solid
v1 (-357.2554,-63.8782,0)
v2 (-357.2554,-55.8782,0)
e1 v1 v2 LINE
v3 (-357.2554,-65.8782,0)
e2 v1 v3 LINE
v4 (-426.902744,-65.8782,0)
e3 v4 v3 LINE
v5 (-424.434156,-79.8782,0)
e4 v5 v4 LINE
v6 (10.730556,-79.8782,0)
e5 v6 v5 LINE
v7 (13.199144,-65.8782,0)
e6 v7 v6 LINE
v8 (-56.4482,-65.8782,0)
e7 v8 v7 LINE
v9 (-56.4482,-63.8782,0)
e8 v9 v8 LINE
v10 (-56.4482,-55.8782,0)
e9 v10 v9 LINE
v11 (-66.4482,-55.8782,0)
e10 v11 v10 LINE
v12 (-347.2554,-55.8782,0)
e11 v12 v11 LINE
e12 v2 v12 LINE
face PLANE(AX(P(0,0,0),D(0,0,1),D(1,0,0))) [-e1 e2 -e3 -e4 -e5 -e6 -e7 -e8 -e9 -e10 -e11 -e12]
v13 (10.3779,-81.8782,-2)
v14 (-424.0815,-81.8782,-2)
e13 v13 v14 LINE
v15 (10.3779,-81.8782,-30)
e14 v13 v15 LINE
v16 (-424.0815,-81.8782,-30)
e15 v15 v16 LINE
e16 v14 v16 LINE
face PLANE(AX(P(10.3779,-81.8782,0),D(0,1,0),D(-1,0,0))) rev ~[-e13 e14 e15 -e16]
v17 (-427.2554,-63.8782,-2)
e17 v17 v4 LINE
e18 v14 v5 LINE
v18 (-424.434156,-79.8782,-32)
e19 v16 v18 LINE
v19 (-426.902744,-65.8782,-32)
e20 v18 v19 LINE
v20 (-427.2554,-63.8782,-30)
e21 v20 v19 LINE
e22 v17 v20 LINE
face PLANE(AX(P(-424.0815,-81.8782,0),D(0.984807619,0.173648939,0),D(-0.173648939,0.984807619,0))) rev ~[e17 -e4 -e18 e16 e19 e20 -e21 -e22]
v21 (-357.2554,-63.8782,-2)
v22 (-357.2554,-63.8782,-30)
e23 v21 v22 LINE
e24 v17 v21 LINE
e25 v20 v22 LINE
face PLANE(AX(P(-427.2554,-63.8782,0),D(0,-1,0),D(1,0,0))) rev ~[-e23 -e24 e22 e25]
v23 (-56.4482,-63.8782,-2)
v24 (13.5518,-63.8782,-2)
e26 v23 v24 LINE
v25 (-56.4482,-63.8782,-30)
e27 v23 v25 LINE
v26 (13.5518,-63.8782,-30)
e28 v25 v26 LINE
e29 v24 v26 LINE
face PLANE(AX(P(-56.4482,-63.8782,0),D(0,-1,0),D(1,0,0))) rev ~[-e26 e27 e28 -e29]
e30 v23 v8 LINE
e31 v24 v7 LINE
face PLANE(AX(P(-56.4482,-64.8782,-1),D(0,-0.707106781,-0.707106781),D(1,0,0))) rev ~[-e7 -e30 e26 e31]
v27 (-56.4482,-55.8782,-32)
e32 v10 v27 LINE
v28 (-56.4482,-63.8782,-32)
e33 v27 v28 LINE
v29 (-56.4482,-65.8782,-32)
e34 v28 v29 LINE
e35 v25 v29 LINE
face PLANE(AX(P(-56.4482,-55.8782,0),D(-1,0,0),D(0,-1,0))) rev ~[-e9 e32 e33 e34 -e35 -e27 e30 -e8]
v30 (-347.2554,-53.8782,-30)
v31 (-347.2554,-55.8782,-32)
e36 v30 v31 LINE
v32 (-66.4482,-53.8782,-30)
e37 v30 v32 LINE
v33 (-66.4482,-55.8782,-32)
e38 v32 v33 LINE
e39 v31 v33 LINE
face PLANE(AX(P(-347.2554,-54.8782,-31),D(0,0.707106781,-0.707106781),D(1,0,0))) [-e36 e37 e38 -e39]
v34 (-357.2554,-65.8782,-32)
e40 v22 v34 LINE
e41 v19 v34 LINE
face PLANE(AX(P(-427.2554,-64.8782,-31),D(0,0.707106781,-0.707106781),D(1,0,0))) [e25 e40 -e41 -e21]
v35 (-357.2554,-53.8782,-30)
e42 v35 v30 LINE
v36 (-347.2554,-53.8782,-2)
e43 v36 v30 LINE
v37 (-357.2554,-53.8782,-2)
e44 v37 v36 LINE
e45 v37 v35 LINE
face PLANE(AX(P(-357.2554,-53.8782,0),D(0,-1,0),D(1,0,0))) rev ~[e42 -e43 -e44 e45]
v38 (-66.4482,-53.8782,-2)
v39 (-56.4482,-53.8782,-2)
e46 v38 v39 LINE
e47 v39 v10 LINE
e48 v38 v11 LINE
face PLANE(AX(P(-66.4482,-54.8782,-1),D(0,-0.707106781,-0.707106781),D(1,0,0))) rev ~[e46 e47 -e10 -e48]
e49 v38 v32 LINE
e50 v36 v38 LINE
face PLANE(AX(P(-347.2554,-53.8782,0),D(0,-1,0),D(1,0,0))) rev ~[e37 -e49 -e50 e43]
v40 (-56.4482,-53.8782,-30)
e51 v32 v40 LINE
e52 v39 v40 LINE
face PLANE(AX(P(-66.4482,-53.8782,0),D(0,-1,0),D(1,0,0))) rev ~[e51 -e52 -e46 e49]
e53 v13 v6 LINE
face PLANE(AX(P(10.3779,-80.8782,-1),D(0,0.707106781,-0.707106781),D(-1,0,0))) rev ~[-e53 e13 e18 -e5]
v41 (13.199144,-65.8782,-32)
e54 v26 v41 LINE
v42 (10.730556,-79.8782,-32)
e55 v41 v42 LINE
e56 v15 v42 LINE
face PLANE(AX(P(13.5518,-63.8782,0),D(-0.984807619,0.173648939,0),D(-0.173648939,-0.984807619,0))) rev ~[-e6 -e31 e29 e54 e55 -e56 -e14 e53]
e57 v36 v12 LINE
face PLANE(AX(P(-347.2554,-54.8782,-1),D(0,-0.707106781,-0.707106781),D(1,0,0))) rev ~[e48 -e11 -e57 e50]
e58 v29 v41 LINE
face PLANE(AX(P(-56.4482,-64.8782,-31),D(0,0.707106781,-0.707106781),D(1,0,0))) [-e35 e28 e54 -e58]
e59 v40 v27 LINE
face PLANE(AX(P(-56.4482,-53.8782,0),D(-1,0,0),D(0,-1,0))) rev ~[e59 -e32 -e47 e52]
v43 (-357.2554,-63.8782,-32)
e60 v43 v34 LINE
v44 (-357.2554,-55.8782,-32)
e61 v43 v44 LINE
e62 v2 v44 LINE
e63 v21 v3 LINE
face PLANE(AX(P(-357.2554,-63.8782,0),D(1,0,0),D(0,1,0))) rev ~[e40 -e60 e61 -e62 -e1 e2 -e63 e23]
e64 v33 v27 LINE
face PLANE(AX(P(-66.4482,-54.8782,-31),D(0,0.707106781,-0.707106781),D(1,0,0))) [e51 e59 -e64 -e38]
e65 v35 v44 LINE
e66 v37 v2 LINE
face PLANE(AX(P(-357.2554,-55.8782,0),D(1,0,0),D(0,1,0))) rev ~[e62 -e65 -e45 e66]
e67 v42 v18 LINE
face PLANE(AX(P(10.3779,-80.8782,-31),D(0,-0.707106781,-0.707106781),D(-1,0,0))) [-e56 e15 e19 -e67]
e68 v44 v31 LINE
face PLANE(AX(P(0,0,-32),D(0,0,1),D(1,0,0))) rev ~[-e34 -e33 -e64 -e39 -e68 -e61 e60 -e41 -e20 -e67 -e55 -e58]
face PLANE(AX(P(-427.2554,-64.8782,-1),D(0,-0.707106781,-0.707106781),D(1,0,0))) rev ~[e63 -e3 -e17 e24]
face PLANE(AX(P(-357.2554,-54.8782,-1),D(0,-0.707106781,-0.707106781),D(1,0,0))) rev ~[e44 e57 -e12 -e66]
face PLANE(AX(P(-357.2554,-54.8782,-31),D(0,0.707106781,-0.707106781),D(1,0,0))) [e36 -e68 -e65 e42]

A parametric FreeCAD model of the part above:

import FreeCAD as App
import Part
import Sketcher
from FreeCAD import Vector
Q = App.Units.Quantity


def edges_at(feature, points):
    """Names of the edges that pass closest to the given points."""
    edges = feature.Shape.Edges
    near = lambda p: min(range(len(edges)), key=lambda i: edges[i].distToShape(Part.Vertex(*p))[0])
    return sorted({f"Edge{near(p) + 1}" for p in points})

doc = App.newDocument("Part")
body = doc.addObject("PartDesign::Body", "Body")

# Sketch on XY plane
sketch1 = body.newObject("Sketcher::SketchObject", "Sketch")
sketch1.AttachmentSupport = (doc.getObject("XY_Plane"), [""])
sketch1.MapMode = "FlatFace"
sketch1.addGeometry(Part.LineSegment(Vector(-56, -54, 0), Vector(-357, -54, 0)), False)
sketch1.addGeometry(Part.LineSegment(Vector(-357, -54, 0), Vector(-357, -64, 0)), False)
sketch1.addGeometry(Part.LineSegment(Vector(-357, -64, 0), Vector(-427, -64, 0)), False)
sketch1.addGeometry(Part.LineSegment(Vector(-427, -64, 0), Vector(-424, -82, 0)), False)
sketch1.addGeometry(Part.LineSegment(Vector(-424, -82, 0), Vector(10, -82, 0)), False)
sketch1.addGeometry(Part.LineSegment(Vector(10, -82, 0), Vector(14, -64, 0)), False)
sketch1.addGeometry(Part.LineSegment(Vector(14, -64, 0), Vector(-56, -64, 0)), False)
sketch1.addGeometry(Part.LineSegment(Vector(-56, -64, 0), Vector(-56, -54, 0)), False)
sketch1.addConstraint(Sketcher.Constraint("Coincident", 0, 2, 1, 1))
sketch1.addConstraint(Sketcher.Constraint("Coincident", 1, 2, 2, 1))
sketch1.addConstraint(Sketcher.Constraint("Coincident", 2, 2, 3, 1))
sketch1.addConstraint(Sketcher.Constraint("Coincident", 3, 2, 4, 1))
sketch1.addConstraint(Sketcher.Constraint("Coincident", 4, 2, 5, 1))
sketch1.addConstraint(Sketcher.Constraint("Coincident", 5, 2, 6, 1))
sketch1.addConstraint(Sketcher.Constraint("Coincident", 6, 2, 7, 1))
sketch1.addConstraint(Sketcher.Constraint("Coincident", 7, 2, 0, 1))
sketch1.addConstraint(Sketcher.Constraint("Horizontal", 0))
sketch1.addConstraint(Sketcher.Constraint("Vertical", 1))
sketch1.addConstraint(Sketcher.Constraint("Horizontal", 2))
sketch1.addConstraint(Sketcher.Constraint("Horizontal", 4))
sketch1.addConstraint(Sketcher.Constraint("Horizontal", 6))
sketch1.addConstraint(Sketcher.Constraint("Vertical", 7))
sketch1.addConstraint(Sketcher.Constraint("Horizontal", 2, 2, 5, 2))
sketch1.addConstraint(Sketcher.Constraint("Equal", 2, 6))
sketch1.addConstraint(Sketcher.Constraint("Equal", 3, 5))
sketch1.addConstraint(Sketcher.Constraint("DistanceY", 3, 2, 0, 2, Q("28 mm")))
sketch1.addConstraint(Sketcher.Constraint("DistanceX", 2, 2, 2, 1, Q("70 mm")))
sketch1.addConstraint(Sketcher.Constraint("DistanceY", 1, 2, 1, 1, Q("10 mm")))
sketch1.addConstraint(Sketcher.Constraint("Angle", 3, Q("-80 deg")))
sketch1.addConstraint(Sketcher.Constraint("DistanceX", 0, 2, 0, 1, Q("300.8072 mm")))
sketch1.addConstraint(Sketcher.Constraint("DistanceX", -1, 1, 4, 2, Q("10.378 mm")))
sketch1.addConstraint(Sketcher.Constraint("DistanceY", 0, 2, -1, 1, Q("53.8782 mm")))
pad1 = body.newObject("PartDesign::Pad", "Pad")
pad1.Profile = sketch1
pad1.Length = 32
pad1.Reversed = True
doc.recompute()

chamfer = body.newObject("PartDesign::Chamfer", "Chamfer")
chamfer.Base = (pad1, edges_at(pad1, [
    (-392.255, -63.878, 0),
    (-392.255, -63.878, -32),
    (-206.852, -81.878, -32),
    (-206.852, -81.878, 0),
    (-21.448, -63.878, 0),
    (-21.448, -63.878, -32),
    (-206.852, -53.878, 0),
    (-206.852, -53.878, -32),
]))
chamfer.Size = 2

doc.recompute()
